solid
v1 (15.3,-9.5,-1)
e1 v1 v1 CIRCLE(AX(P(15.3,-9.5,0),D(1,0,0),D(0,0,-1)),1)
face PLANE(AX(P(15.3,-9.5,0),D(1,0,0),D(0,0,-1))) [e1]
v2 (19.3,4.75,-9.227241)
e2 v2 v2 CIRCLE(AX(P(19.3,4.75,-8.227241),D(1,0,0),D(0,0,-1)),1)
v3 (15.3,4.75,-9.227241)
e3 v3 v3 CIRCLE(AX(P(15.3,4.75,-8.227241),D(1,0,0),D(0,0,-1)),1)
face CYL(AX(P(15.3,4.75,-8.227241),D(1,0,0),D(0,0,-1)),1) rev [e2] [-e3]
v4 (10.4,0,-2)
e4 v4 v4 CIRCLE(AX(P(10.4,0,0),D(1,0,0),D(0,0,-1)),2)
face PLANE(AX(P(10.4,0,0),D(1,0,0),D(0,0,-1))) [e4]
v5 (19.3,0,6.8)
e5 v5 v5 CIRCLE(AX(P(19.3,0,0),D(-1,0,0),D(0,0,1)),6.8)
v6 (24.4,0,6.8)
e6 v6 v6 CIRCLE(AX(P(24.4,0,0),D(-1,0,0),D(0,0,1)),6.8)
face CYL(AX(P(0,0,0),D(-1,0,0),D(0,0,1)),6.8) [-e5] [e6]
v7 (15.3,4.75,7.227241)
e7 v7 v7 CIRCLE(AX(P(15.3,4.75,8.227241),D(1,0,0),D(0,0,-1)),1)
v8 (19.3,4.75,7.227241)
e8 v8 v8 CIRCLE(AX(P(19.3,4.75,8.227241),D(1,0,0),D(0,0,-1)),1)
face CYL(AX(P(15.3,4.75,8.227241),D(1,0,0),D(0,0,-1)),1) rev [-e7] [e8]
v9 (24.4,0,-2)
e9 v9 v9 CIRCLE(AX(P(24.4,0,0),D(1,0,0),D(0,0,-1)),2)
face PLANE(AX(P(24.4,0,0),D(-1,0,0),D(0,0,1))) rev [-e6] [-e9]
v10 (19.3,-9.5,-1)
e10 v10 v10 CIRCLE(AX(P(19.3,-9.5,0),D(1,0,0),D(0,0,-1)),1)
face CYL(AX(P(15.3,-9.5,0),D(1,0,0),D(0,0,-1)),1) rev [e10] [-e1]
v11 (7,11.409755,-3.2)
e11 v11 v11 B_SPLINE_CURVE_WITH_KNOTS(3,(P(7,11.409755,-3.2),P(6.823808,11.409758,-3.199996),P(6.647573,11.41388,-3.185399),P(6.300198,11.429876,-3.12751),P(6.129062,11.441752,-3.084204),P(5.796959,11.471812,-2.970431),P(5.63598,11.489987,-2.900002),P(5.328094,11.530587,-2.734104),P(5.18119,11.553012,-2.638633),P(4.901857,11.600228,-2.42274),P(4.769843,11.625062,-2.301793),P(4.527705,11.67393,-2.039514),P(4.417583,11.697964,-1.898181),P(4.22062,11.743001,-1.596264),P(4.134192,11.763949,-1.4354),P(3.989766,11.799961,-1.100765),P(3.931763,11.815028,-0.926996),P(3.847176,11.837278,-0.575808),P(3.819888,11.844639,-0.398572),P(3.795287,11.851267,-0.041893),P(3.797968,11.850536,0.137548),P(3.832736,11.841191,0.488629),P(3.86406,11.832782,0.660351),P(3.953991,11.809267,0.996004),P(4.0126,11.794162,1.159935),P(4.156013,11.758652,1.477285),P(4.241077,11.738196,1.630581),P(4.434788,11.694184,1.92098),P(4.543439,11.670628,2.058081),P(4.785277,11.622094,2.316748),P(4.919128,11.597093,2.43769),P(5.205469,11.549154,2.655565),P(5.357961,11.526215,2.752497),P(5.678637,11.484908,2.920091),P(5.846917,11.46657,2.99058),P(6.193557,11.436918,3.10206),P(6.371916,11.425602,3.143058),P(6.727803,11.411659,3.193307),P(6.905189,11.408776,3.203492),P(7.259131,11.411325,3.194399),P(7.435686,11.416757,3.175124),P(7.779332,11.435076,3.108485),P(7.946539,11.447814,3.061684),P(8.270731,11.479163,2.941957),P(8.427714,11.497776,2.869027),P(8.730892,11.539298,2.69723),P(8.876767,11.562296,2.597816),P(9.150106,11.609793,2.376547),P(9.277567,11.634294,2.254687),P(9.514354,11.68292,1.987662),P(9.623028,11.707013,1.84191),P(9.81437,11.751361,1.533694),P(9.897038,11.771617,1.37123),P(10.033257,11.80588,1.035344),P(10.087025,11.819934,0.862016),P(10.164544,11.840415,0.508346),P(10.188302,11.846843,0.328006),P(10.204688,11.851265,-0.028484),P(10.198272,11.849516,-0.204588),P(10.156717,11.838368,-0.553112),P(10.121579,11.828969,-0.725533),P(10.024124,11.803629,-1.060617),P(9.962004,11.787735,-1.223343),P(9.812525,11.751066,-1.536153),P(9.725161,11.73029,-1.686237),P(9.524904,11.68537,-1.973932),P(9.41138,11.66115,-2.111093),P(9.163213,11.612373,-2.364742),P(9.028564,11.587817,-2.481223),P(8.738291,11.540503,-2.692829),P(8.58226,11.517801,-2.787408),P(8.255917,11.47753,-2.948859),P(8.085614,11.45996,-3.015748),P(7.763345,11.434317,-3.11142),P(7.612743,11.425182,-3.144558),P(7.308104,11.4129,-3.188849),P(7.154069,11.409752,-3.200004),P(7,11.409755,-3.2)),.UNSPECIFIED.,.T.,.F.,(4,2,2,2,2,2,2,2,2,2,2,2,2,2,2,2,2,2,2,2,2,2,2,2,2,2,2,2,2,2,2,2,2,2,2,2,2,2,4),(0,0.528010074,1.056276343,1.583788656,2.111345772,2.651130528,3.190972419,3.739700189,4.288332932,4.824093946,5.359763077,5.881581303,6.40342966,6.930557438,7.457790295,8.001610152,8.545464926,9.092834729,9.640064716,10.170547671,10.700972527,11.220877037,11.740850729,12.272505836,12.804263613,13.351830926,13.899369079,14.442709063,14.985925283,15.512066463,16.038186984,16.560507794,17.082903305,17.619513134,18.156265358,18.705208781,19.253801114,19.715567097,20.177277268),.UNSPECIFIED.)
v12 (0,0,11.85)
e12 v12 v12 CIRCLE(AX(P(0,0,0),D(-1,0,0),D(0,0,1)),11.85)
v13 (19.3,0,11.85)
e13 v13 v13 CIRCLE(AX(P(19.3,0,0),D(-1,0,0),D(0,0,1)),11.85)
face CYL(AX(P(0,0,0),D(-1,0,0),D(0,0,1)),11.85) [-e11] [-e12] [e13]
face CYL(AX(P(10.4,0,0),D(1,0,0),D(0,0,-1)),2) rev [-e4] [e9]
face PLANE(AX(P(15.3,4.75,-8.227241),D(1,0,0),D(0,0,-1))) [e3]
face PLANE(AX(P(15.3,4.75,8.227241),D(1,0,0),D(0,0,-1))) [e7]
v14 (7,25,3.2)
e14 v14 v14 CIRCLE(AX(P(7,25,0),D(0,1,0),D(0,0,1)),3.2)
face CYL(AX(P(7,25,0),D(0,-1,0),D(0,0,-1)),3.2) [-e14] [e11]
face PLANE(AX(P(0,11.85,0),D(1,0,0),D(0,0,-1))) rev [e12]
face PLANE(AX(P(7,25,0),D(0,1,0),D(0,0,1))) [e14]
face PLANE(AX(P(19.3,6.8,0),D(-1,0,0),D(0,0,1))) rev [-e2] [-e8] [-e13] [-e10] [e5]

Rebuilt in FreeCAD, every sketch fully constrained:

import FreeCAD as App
import Part
import Sketcher


def add_polygon(sketch, points):
    """Adds a closed chain of lines whose ends are joined by coincident constraints."""
    first, n = sketch.GeometryCount, len(points)
    for a, b in zip(points, points[1:] + points[:1]):
        sketch.addGeometry(Part.LineSegment(App.Vector(*a, 0), App.Vector(*b, 0)), False)
    for i in range(n):
        sketch.addConstraint(Sketcher.Constraint("Coincident", first + i, 2, first + (i + 1) % n, 1))

doc = App.newDocument("Part")
body = doc.addObject("PartDesign::Body", "Body")

# Sketch on XY plane
sketch1 = body.newObject("Sketcher::SketchObject", "Sketch")
sketch1.AttachmentSupport = (doc.getObject("XY_Plane"), [""])
sketch1.MapMode = "FlatFace"
add_polygon(sketch1, [(0, 0), (24.4, 0), (24.4, 6.8), (19.3, 6.8), (19.3, 11.85), (0, 11.85)])  # lines 0-5
sketch1.addConstraint([
    Sketcher.Constraint("Horizontal", 0),
    Sketcher.Constraint("Vertical", 1),
    Sketcher.Constraint("Horizontal", 2),
    Sketcher.Constraint("Vertical", 3),
    Sketcher.Constraint("Horizontal", 4),
    Sketcher.Constraint("Vertical", 5),
    Sketcher.Constraint("Coincident", 5, 2, -1, 1),
    Sketcher.Constraint("DistanceX", 0, 1, 0, 2, 24.4),
    Sketcher.Constraint("DistanceX", 2, 2, 2, 1, 5.1),
    Sketcher.Constraint("DistanceY", 1, 1, 1, 2, 6.8),
    Sketcher.Constraint("DistanceY", 3, 1, 3, 2, 5.05),
])
revolution = body.newObject("PartDesign::Revolution", "Revolution")
revolution.Profile = sketch1
revolution.ReferenceAxis = (sketch1, ["H_Axis"])
revolution.Angle = 360

# Sketch on XZ plane
sketch2 = body.newObject("Sketcher::SketchObject", "Sketch001")
sketch2.AttachmentSupport = (doc.getObject("XZ_Plane"), [""])
sketch2.MapMode = "FlatFace"
sketch2.addGeometry(Part.Circle(App.Vector(7, 0, 0), App.Vector(0, 0, 1), 3.2), False)
sketch2.addConstraint([
    Sketcher.Constraint("PointOnObject", 0, 3, -1),
    Sketcher.Constraint("Diameter", 0, 6.4),
    Sketcher.Constraint("DistanceX", -1, 1, 0, 3, 7.0),
])
pad1 = body.newObject("PartDesign::Pad", "Pad")
pad1.Profile = sketch2
pad1.Length = 25
pad1.Reversed = True

# Sketch on YZ plane
sketch3 = body.newObject("Sketcher::SketchObject", "Sketch002")
sketch3.AttachmentSupport = (doc.getObject("YZ_Plane"), [""])
sketch3.MapMode = "FlatFace"
sketch3.AttachmentOffset = App.Placement(App.Vector(0, 0, 24.4), App.Rotation())
sketch3.addGeometry(Part.Circle(App.Vector(0, 0, 0), App.Vector(0, 0, 1), 2), False)
sketch3.addConstraint([
    Sketcher.Constraint("Coincident", 0, 3, -1, 1),
    Sketcher.Constraint("Diameter", 0, 4.0),
])
pocket1 = body.newObject("PartDesign::Pocket", "Pocket")
pocket1.Profile = sketch3
pocket1.Length = 14

# Sketch on YZ plane
sketch4 = body.newObject("Sketcher::SketchObject", "Sketch003")
sketch4.AttachmentSupport = (doc.getObject("YZ_Plane"), [""])
sketch4.MapMode = "FlatFace"
sketch4.AttachmentOffset = App.Placement(App.Vector(0, 0, 19.3), App.Rotation())
sketch4.addGeometry([
    Part.Circle(App.Vector(-9.5, 0, 0), App.Vector(0, 0, 1), 1),
    Part.Circle(App.Vector(4.75, 8.227241, 0), App.Vector(0, 0, 1), 1),
    Part.Circle(App.Vector(4.75, -8.227241, 0), App.Vector(0, 0, 1), 1),
], False)
sketch4.addConstraint([
    Sketcher.Constraint("Equal", 0, 1),
    Sketcher.Constraint("Equal", 1, 2),
    Sketcher.Constraint("Symmetric", 1, 3, 2, 3, -1),
    Sketcher.Constraint("PointOnObject", 0, 3, -1),
    Sketcher.Constraint("Diameter", 0, 2.0),
    Sketcher.Constraint("DistanceX", 0, 3, -1, 1, 9.5),
    Sketcher.Constraint("DistanceX", -1, 1, 1, 3, 4.75),
    Sketcher.Constraint("DistanceY", -1, 1, 1, 3, 8.227241),
])
pocket2 = body.newObject("PartDesign::Pocket", "Pocket001")
pocket2.Profile = sketch4
pocket2.Length = 4

doc.recompute()
